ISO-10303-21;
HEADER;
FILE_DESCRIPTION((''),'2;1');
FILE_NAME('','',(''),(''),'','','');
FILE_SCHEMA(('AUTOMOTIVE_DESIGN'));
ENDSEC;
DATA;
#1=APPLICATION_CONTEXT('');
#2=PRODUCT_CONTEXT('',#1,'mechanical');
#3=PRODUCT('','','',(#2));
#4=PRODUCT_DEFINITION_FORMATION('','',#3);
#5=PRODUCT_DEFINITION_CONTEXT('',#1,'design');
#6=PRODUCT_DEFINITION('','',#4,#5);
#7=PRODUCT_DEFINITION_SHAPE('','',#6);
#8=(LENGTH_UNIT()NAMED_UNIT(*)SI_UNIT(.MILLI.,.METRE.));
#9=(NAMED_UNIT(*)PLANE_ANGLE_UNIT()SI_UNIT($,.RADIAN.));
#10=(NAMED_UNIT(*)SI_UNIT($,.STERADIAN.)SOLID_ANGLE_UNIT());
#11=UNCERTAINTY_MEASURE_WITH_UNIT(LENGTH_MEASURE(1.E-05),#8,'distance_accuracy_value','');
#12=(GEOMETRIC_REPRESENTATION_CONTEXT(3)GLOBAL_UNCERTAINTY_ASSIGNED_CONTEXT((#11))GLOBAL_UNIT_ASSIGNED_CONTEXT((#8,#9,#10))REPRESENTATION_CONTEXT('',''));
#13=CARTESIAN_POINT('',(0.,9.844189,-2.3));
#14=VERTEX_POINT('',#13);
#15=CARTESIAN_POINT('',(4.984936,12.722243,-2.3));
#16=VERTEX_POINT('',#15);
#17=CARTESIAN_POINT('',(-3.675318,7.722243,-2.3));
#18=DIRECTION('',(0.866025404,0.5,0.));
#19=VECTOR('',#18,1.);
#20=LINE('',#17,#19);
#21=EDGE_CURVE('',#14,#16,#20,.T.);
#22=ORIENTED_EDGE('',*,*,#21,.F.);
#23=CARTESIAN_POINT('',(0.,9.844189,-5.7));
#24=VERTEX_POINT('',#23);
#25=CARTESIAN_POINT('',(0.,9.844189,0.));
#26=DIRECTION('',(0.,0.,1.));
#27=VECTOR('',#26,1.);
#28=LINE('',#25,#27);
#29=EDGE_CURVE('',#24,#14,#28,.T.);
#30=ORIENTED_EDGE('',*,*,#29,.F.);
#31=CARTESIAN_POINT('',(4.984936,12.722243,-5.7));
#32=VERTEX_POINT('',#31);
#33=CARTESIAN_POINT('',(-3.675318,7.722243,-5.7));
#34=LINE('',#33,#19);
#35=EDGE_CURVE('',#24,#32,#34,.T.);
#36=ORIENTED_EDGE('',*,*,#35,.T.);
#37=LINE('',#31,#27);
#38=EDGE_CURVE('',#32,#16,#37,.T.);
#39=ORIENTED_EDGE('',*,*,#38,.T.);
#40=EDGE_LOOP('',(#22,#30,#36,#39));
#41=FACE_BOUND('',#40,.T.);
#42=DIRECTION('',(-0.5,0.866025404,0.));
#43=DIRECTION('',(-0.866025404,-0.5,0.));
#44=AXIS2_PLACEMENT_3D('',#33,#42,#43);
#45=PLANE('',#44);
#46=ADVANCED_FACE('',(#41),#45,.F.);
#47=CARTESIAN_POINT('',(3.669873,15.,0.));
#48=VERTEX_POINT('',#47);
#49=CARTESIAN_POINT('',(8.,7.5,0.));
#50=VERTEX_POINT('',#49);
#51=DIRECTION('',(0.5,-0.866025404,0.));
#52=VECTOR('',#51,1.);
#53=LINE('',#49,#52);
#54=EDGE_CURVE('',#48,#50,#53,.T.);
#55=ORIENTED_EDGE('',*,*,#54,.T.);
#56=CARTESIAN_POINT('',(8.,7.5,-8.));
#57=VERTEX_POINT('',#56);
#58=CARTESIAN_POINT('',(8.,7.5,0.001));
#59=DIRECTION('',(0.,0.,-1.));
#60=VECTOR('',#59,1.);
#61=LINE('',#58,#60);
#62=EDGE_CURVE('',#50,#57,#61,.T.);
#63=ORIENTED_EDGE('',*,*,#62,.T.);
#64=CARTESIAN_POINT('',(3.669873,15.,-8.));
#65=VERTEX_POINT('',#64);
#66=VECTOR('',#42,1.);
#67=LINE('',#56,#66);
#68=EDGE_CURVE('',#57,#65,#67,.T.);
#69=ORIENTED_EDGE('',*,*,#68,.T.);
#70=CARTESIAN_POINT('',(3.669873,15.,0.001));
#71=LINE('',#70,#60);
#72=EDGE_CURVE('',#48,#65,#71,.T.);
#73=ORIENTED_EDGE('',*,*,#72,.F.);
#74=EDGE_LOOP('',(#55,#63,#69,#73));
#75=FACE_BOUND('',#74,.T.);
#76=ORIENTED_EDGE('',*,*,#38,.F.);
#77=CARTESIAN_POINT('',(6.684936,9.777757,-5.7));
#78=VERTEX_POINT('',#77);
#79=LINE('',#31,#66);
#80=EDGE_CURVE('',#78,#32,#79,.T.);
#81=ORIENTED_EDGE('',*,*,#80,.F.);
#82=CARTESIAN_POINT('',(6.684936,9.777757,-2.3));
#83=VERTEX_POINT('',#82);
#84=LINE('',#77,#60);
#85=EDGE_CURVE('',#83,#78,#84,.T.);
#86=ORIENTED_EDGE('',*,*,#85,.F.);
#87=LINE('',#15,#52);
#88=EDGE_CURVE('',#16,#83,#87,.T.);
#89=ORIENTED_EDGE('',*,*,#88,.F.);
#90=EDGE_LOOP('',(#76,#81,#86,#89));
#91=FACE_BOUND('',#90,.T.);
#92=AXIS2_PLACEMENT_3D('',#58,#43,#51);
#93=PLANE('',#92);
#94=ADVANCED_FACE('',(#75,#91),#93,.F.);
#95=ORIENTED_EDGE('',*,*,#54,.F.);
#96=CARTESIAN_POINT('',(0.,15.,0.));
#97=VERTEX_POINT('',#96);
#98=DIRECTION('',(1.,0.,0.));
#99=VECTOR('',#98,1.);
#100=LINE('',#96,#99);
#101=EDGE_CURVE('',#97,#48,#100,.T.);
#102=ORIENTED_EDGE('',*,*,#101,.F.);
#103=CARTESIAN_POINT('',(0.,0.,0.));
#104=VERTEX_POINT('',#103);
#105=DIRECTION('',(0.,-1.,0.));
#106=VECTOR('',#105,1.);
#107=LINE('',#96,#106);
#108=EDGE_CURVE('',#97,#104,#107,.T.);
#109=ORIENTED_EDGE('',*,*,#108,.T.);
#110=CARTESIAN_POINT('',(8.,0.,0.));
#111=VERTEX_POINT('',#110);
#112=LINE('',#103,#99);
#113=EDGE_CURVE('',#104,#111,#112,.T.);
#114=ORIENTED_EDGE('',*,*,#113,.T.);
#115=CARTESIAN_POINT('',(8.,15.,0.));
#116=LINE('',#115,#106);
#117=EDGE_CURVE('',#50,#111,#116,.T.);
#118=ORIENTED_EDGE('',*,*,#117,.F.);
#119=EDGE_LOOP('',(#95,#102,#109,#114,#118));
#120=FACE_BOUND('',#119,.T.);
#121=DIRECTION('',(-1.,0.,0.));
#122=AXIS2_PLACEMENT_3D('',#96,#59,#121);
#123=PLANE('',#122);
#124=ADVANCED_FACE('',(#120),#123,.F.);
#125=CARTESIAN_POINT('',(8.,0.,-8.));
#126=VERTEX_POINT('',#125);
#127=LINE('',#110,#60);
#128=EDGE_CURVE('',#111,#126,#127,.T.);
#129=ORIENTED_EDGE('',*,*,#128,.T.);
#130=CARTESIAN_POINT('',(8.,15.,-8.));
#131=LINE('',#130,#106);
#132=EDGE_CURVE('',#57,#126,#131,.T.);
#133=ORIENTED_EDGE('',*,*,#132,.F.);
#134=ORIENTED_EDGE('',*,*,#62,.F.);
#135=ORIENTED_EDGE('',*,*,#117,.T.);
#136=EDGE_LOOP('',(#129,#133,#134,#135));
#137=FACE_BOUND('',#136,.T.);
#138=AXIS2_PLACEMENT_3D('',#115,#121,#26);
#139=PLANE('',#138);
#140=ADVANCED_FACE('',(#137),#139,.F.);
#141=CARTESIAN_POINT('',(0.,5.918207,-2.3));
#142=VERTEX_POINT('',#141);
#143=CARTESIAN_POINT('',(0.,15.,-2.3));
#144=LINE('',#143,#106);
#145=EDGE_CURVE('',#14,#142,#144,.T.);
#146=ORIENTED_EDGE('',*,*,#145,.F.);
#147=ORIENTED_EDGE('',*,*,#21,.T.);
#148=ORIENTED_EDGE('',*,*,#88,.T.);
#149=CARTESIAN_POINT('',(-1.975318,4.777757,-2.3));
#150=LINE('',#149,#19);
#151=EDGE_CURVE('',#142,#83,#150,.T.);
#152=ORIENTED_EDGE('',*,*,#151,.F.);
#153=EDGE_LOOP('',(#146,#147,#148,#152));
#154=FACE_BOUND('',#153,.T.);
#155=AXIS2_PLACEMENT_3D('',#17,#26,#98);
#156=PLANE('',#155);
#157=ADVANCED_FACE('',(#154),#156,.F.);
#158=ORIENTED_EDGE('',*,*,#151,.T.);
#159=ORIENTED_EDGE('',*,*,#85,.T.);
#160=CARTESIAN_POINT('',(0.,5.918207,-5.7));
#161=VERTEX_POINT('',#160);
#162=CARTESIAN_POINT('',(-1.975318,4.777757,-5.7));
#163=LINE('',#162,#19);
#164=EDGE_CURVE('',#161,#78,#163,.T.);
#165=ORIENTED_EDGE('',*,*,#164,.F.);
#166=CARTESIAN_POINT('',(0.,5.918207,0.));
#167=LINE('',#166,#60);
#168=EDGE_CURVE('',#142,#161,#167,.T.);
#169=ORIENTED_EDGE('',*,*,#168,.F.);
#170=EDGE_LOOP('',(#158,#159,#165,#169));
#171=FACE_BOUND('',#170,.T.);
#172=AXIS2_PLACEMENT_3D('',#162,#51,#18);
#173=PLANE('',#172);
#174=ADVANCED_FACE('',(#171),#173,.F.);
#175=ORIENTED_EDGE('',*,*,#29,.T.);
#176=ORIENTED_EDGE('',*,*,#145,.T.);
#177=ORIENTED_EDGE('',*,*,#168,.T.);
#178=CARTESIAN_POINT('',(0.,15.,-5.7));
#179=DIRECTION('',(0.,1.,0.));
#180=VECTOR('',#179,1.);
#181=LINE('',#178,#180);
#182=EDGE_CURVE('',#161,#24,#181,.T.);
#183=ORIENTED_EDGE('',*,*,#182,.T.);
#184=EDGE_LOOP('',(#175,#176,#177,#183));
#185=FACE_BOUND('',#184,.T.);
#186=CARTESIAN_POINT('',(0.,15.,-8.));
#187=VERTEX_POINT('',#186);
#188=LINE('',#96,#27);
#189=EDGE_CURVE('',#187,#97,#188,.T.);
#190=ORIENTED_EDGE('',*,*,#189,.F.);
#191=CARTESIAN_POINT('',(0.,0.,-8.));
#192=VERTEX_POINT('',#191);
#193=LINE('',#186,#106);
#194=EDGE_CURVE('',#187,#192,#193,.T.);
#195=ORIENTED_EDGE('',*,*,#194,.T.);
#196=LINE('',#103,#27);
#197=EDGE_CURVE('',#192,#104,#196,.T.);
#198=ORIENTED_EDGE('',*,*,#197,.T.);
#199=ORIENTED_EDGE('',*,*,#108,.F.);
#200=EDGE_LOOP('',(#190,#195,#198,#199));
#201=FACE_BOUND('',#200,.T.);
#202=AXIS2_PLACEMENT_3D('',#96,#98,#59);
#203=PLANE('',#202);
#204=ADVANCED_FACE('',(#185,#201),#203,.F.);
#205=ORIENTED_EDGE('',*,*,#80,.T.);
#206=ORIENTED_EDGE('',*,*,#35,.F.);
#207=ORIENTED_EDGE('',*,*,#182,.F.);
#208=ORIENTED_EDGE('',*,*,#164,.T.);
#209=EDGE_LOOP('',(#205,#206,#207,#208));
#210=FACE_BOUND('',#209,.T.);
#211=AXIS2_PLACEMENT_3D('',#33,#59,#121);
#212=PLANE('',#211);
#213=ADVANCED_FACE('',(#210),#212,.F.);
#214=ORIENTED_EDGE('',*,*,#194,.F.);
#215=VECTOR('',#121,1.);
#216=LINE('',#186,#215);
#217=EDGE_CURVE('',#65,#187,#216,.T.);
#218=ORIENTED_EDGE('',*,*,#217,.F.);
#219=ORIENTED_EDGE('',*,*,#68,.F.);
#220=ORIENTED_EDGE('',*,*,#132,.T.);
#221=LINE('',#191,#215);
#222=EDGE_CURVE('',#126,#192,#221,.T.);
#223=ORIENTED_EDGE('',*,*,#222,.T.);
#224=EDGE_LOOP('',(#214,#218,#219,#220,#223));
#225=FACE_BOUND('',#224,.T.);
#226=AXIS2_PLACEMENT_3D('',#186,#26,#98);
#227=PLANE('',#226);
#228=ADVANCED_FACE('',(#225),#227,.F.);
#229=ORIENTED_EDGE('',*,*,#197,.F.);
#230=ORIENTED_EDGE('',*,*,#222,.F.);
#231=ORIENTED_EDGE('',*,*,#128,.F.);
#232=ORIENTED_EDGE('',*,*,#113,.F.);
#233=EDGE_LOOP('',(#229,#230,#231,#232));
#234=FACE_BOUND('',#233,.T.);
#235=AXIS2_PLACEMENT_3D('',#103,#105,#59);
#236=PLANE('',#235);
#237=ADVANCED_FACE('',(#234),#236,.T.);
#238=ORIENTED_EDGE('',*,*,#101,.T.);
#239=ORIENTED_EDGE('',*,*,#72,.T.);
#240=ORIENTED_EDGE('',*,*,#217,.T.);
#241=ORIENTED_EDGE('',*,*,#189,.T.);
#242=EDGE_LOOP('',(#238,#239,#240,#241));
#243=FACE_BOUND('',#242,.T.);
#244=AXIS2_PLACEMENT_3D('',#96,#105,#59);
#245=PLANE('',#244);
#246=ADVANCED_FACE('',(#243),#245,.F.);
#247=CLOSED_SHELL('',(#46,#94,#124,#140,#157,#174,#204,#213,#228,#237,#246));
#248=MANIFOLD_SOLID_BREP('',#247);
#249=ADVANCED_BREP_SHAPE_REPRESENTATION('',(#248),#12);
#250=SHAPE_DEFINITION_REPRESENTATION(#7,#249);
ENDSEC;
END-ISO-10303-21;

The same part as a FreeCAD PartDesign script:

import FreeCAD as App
import Part
import Sketcher
from FreeCAD import Vector
Q = App.Units.Quantity


def add_polygon(sketch, points):
    """Adds a closed chain of lines whose ends are joined by coincident constraints."""
    first, n = sketch.GeometryCount, len(points)
    for a, b in zip(points, points[1:] + points[:1]):
        sketch.addGeometry(Part.LineSegment(App.Vector(*a, 0), App.Vector(*b, 0)), False)
    for i in range(n):
        sketch.addConstraint(Sketcher.Constraint("Coincident", first + i, 2, first + (i + 1) % n, 1))

doc = App.newDocument("Part")
params = doc.addObject("Spreadsheet::Sheet", "Params")
for row, (alias, value) in enumerate([
    ("sketch1_width", "8 mm"),
    ("pad1_length", "15 mm"),
    ("sketch2_height", "7.5 mm"),
    ("sketch3_width", "3.4 mm"),
    ("pocket2_length", "10 mm"),
], start=1):
    params.set(f"A{row}", alias)
    params.set(f"B{row}", "=" + value)
    params.setAlias(f"B{row}", alias)

body = doc.addObject("PartDesign::Body", "Body")

sketch1 = doc.addObject("Sketcher::SketchObject", "Sketch")
body.addObject(sketch1)
sketch1.AttachmentSupport = (doc.XZ_Plane, [""])
sketch1.MapMode = "FlatFace"
add_polygon(sketch1, [(0, -8), (0, 0), (8, 0), (8, -8)])
sketch1.addConstraint(Sketcher.Constraint("Vertical", 0))
sketch1.addConstraint(Sketcher.Constraint("Horizontal", 1))
sketch1.addConstraint(Sketcher.Constraint("Vertical", 2))
sketch1.addConstraint(Sketcher.Constraint("Horizontal", 3))
sketch1.addConstraint(Sketcher.Constraint("Coincident", 0, 2, -1, 1))
sketch1.addConstraint(Sketcher.Constraint("Equal", 3, 0))
sketch1.addConstraint(Sketcher.Constraint("DistanceX", 1, 1, 1, 2, Q("8 mm")))
sketch1.setExpression("Constraints[10]", "Params.sketch1_width")
pad1 = doc.addObject("PartDesign::Pad", "Pad")
body.addObject(pad1)
pad1.Profile = sketch1
pad1.setExpression("Length", "Params.pad1_length")
pad1.Reversed = True

sketch2 = doc.addObject("Sketcher::SketchObject", "Sketch001")
body.addObject(sketch2)
sketch2.AttachmentSupport = (doc.XY_Plane, [""])
sketch2.MapMode = "FlatFace"
sketch2.AttachmentOffset = App.Placement(Vector(0, 0, -8), App.Rotation())
add_polygon(sketch2, [(8, 7.5), (3.7, 15), (8, 15)])
sketch2.addConstraint(Sketcher.Constraint("Horizontal", 1))
sketch2.addConstraint(Sketcher.Constraint("Vertical", 2))
sketch2.addConstraint(Sketcher.Constraint("Angle", 0, Q("120 deg")))
sketch2.addConstraint(Sketcher.Constraint("DistanceY", 2, 2, 2, 1, Q("7.5 mm")))
sketch2.addConstraint(Sketcher.Constraint("DistanceY", -1, 1, 0, 2, Q("15 mm")))
sketch2.addConstraint(Sketcher.Constraint("DistanceX", -1, 1, 1, 2, Q("8 mm")))
sketch2.setExpression("Constraints[6]", "Params.sketch2_height")
pocket1 = doc.addObject("PartDesign::Pocket", "Pocket")
body.addObject(pocket1)
pocket1.Profile = sketch2
pocket1.Type = "UpToFirst"
pocket1.Reversed = True

sketch3 = doc.addObject("Sketcher::SketchObject", "Sketch002")
body.addObject(sketch3)
sketch3.Placement = App.Placement(Vector(9.247595, 5.339102, 0), App.Rotation(Vector(0, 0, -1), Vector(-0.5, 0.866025404, 0), Vector(0.866025404, 0.5, 0), "ZXY"))
add_polygon(sketch3, [(2.3, 8.5), (2.3, 5.1), (5.7, 5.1), (5.7, 8.5)])
sketch3.addConstraint(Sketcher.Constraint("Vertical", 0))
sketch3.addConstraint(Sketcher.Constraint("Horizontal", 1))
sketch3.addConstraint(Sketcher.Constraint("Vertical", 2))
sketch3.addConstraint(Sketcher.Constraint("Horizontal", 3))
sketch3.addConstraint(Sketcher.Constraint("Equal", 3, 0))
sketch3.addConstraint(Sketcher.Constraint("DistanceX", 1, 1, 1, 2, Q("3.4 mm")))
sketch3.addConstraint(Sketcher.Constraint("DistanceX", -1, 1, 0, 2, Q("2.3 mm")))
sketch3.addConstraint(Sketcher.Constraint("DistanceY", -1, 1, 0, 2, Q("5.125318 mm")))
sketch3.setExpression("Constraints[9]", "Params.sketch3_width")
pocket2 = doc.addObject("PartDesign::Pocket", "Pocket001")
body.addObject(pocket2)
pocket2.Profile = sketch3
pocket2.setExpression("Length", "Params.pocket2_length")

doc.recompute()
